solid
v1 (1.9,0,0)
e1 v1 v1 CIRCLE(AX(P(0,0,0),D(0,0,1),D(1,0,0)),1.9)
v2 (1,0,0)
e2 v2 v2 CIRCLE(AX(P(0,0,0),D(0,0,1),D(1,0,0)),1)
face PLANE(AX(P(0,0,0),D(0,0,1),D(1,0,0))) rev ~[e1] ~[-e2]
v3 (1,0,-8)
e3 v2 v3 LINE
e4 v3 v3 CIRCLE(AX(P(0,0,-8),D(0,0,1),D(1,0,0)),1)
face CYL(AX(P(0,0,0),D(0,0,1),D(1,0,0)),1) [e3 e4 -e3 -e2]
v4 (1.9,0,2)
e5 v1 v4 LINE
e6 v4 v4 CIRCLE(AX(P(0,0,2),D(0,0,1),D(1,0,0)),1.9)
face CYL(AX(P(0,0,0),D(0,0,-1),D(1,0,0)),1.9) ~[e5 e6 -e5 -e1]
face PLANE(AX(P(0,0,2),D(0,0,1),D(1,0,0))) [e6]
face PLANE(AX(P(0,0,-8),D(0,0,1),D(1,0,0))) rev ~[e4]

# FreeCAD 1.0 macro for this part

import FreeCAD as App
import Part
import Sketcher
from FreeCAD import Vector
Q = App.Units.Quantity

doc = App.newDocument("Part")
params = doc.addObject("Spreadsheet::Sheet", "Params")
for row, (alias, value) in enumerate([
    ("sketch1_diameter", "3.8 mm"),
    ("pad1_length", "2 mm"),
    ("sketch2_diameter", "2 mm"),
    ("pad2_length", "8 mm"),
], start=1):
    params.set(f"A{row}", alias)
    params.set(f"B{row}", "=" + value)
    params.setAlias(f"B{row}", alias)

body = doc.addObject("PartDesign::Body", "Body")

# Sketch on XY plane
sketch1 = body.newObject("Sketcher::SketchObject", "Sketch")
sketch1.AttachmentSupport = (doc.getObject("XY_Plane"), [""])
sketch1.MapMode = "FlatFace"
sketch1.addGeometry(Part.Circle(Vector(0, 0, 0), Vector(0, 0, 1), 1.9), False)
sketch1.addConstraint([
    Sketcher.Constraint("Coincident", 0, 3, -1, 1),
    Sketcher.Constraint("Diameter", 0, Q("3.8 mm")),
])
sketch1.setExpression("Constraints[1]", "Params.sketch1_diameter")
pad1 = body.newObject("PartDesign::Pad", "Pad")
pad1.Profile = sketch1
pad1.setExpression("Length", "Params.pad1_length")

# Sketch on XY plane
sketch2 = body.newObject("Sketcher::SketchObject", "Sketch001")
sketch2.AttachmentSupport = (doc.getObject("XY_Plane"), [""])
sketch2.MapMode = "FlatFace"
sketch2.addGeometry(Part.Circle(Vector(0, 0, 0), Vector(0, 0, 1), 1), False)
sketch2.addConstraint([
    Sketcher.Constraint("Coincident", 0, 3, -1, 1),
    Sketcher.Constraint("Diameter", 0, Q("2 mm")),
])
sketch2.setExpression("Constraints[1]", "Params.sketch2_diameter")
pad2 = body.newObject("PartDesign::Pad", "Pad001")
pad2.Profile = sketch2
pad2.setExpression("Length", "Params.pad2_length")
pad2.Reversed = True

doc.recompute()
